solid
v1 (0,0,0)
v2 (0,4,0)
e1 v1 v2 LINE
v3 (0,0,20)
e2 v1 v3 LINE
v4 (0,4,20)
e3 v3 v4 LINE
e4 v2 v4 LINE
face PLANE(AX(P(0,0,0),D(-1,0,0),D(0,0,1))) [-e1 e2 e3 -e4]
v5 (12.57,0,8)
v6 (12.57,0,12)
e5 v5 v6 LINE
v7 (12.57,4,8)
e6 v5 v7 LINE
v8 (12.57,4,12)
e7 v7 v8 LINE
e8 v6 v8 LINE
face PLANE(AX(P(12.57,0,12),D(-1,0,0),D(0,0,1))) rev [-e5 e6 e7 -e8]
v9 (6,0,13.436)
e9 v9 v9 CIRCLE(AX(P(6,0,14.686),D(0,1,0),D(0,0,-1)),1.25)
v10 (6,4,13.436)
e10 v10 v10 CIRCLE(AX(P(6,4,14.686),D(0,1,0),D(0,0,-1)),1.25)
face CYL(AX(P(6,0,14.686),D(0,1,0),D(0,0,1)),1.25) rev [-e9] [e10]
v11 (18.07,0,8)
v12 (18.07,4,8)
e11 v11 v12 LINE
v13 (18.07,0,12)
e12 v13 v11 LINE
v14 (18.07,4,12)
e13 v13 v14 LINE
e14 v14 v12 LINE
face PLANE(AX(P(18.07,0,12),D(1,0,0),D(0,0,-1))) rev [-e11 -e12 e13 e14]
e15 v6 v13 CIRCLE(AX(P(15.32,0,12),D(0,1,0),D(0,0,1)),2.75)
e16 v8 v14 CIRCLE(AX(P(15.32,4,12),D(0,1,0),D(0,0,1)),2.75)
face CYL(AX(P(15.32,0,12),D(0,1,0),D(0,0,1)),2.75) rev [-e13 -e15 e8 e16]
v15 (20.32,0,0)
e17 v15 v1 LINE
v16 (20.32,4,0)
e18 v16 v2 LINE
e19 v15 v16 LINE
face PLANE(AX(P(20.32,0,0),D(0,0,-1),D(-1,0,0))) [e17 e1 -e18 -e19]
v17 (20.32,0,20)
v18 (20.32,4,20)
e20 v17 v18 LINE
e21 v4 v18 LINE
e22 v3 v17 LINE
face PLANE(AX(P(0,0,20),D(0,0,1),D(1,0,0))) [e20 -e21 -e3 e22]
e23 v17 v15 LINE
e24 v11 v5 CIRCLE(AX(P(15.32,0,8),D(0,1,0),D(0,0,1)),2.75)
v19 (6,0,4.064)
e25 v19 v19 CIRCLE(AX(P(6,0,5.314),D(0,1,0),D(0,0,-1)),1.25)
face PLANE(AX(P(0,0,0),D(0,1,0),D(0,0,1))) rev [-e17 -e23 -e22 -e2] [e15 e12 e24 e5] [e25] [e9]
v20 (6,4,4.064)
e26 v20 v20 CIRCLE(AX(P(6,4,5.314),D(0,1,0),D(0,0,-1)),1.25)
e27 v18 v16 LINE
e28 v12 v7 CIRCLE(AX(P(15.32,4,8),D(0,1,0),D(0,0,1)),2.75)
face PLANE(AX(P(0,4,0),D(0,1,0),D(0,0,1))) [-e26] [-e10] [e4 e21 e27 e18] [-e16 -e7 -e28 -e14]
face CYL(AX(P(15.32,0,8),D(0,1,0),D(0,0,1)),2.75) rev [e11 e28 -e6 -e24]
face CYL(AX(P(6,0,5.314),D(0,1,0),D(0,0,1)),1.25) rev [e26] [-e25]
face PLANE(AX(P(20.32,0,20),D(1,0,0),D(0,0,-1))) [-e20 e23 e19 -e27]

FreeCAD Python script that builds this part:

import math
import FreeCAD as App
import Part
import Sketcher

V = App.Vector
Q = App.Units.Quantity

doc = App.newDocument("Part")
body = doc.addObject("PartDesign::Body", "Body")

# Sketch on XZ plane
sketch1 = body.newObject("Sketcher::SketchObject", "Sketch")
sketch1.AttachmentSupport = (doc.getObject("XZ_Plane"), [""])
sketch1.MapMode = "FlatFace"
sketch1.AttachmentOffset = App.Placement(V(0, 0, -4), App.Rotation())
sketch1.addGeometry([
    Part.LineSegment(V(0, 0, 0), V(0, 20, 0)),  # 0
    Part.LineSegment(V(0, 20, 0), V(20.3, 20, 0)),  # 1
    Part.LineSegment(V(20.3, 20, 0), V(20.3, 0, 0)),  # 2
    Part.LineSegment(V(20.3, 0, 0), V(0, 0, 0)),  # 3
    Part.Circle(V(6, 14.7, 0), V(0, 0, 1), 1.2),  # 4
    Part.Circle(V(6, 5.3, 0), V(0, 0, 1), 1.2),  # 5
    Part.ArcOfCircle(Part.Circle(V(15.3, 12, 0), V(0, 0, 1), 2.8), math.radians(0), math.radians(180)),  # 6
    Part.LineSegment(V(12.6, 12, 0), V(12.6, 8, 0)),  # 7
    Part.ArcOfCircle(Part.Circle(V(15.3, 8, 0), V(0, 0, 1), 2.8), math.radians(180), math.radians(360)),  # 8
    Part.LineSegment(V(18.1, 8, 0), V(18.1, 12, 0)),  # 9
], False)
sketch1.addConstraint([
    Sketcher.Constraint("Coincident", 0, 2, 1, 1),
    Sketcher.Constraint("Coincident", 1, 2, 2, 1),
    Sketcher.Constraint("Coincident", 2, 2, 3, 1),
    Sketcher.Constraint("Coincident", 3, 2, 0, 1),
    Sketcher.Constraint("Tangent", 6, 2, 7, 1),
    Sketcher.Constraint("Tangent", 7, 2, 8, 1),
    Sketcher.Constraint("Tangent", 8, 2, 9, 1),
    Sketcher.Constraint("Tangent", 9, 2, 6, 1),
    Sketcher.Constraint("Vertical", 0),
    Sketcher.Constraint("Horizontal", 1),
    Sketcher.Constraint("Vertical", 2),
    Sketcher.Constraint("Horizontal", 3),
    Sketcher.Constraint("Vertical", 7),
    Sketcher.Constraint("Vertical", 9),
    Sketcher.Constraint("Coincident", 3, 2, -1, 1),
    Sketcher.Constraint("Equal", 4, 5),
    Sketcher.Constraint("Vertical", 4, 3, 5, 3),
    Sketcher.Constraint("Diameter", 4, Q("2.5 mm")),
    Sketcher.Constraint("DistanceY", 0, 1, 0, 2, Q("20 mm")),
    Sketcher.Constraint("DistanceY", 7, 2, 7, 1, Q("4 mm")),
    Sketcher.Constraint("Radius", 6, Q("2.75 mm")),
    Sketcher.Constraint("DistanceX", -1, 1, 4, 3, Q("6 mm")),
    Sketcher.Constraint("DistanceY", -1, 1, 6, 3, Q("12 mm")),
    Sketcher.Constraint("DistanceX", 6, 3, 1, 2, Q("5 mm")),
    Sketcher.Constraint("DistanceX", 1, 1, 1, 2, Q("20.32 mm")),
    Sketcher.Constraint("DistanceY", -1, 1, 4, 3, Q("14.686 mm")),
    Sketcher.Constraint("DistanceY", -1, 1, 5, 3, Q("5.314 mm")),
])
pad1 = body.newObject("PartDesign::Pad", "Pad")
pad1.Profile = sketch1
pad1.Length = 4

doc.recompute()
